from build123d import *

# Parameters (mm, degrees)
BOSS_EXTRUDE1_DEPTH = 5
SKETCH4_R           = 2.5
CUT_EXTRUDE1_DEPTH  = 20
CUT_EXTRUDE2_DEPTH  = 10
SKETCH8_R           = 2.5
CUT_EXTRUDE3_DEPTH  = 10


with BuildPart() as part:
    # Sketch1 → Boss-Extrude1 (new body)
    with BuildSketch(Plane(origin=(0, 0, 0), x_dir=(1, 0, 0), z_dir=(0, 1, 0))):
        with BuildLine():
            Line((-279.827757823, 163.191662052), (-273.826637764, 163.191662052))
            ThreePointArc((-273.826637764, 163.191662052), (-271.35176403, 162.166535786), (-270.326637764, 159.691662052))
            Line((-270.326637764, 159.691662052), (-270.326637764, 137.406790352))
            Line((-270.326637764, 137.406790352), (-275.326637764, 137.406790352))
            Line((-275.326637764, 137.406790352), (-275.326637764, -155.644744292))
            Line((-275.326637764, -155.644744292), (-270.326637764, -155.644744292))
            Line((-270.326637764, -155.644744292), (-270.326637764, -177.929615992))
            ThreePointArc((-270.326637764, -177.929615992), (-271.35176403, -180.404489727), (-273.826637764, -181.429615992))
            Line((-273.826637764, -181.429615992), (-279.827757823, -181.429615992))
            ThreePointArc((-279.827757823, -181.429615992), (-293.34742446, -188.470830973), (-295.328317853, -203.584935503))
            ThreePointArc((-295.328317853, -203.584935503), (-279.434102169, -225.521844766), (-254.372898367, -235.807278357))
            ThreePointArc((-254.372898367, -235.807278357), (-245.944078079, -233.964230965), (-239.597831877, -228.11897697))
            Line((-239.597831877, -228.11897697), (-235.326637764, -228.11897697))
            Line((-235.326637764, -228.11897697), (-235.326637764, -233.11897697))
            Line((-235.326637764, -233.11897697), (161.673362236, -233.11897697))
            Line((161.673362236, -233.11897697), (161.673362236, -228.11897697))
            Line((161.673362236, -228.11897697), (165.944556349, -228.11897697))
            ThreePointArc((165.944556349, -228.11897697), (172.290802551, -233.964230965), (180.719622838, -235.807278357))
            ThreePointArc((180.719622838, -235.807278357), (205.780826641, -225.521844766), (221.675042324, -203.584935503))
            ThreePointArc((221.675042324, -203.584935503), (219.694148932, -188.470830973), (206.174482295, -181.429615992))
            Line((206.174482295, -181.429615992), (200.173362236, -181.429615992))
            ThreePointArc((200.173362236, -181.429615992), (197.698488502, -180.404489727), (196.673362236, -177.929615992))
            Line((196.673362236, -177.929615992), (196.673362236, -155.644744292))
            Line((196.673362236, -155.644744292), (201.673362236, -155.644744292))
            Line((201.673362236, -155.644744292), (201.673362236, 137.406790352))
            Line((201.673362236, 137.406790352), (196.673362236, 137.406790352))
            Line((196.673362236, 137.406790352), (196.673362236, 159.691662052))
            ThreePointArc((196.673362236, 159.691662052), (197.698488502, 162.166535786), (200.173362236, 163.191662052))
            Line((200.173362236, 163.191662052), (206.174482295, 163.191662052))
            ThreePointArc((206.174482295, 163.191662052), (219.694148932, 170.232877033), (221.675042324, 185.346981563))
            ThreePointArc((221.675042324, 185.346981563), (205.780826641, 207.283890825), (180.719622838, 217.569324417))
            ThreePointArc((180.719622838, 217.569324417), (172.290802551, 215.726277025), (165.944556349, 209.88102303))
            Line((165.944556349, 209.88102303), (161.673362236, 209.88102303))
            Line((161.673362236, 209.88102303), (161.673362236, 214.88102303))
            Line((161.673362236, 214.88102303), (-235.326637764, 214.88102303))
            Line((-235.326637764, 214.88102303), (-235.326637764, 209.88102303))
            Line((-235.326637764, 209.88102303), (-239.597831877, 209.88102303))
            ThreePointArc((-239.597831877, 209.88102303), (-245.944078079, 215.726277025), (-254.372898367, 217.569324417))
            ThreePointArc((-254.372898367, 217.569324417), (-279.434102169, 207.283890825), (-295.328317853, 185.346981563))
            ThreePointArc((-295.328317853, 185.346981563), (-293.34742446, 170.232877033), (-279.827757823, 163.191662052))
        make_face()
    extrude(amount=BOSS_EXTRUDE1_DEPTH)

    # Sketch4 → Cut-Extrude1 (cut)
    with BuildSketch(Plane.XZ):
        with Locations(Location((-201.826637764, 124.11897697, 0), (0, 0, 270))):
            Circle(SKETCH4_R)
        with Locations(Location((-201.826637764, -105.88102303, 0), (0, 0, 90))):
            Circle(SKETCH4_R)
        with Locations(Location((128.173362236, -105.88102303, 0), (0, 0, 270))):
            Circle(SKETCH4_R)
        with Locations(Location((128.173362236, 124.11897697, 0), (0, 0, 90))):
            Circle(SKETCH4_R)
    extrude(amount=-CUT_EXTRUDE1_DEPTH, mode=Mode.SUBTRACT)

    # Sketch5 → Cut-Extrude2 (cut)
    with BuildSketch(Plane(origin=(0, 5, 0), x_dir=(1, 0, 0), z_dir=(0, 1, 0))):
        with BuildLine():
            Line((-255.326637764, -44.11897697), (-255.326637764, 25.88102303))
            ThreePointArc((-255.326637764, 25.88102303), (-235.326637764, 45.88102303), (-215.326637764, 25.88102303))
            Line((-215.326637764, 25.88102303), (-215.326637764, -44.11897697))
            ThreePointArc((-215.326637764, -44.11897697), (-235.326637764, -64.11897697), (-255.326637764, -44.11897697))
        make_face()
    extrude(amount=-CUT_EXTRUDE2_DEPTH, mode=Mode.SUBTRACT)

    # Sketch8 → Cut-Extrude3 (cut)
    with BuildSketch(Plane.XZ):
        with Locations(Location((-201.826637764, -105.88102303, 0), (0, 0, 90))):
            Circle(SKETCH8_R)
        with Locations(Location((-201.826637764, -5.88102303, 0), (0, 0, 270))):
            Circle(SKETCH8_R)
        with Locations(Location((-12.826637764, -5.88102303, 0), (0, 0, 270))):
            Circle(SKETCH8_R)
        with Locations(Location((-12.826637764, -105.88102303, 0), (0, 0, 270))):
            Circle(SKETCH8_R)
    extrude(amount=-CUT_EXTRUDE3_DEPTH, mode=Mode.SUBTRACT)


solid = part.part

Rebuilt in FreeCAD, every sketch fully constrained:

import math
import FreeCAD as App
import Part
import Sketcher
from FreeCAD import Vector
Q = App.Units.Quantity

doc = App.newDocument("Part")
body = doc.addObject("PartDesign::Body", "Body")

sketch1 = body.newObject("Sketcher::SketchObject", "Sketch")
sketch1.AttachmentSupport = (doc.getObject("XZ_Plane"), [""])
sketch1.MapMode = "FlatFace"
sketch1.addGeometry([
    Part.LineSegment(Vector(-279.8, -163.2, 0), Vector(-273.8, -163.2, 0)),
    Part.ArcOfCircle(Part.Circle(Vector(-273.8, -159.7, 0), Vector(0, 0, 1), 3.5), math.radians(-90), math.radians(0)),
    Part.LineSegment(Vector(-270.3, -159.7, 0), Vector(-270.3, -137.4, 0)),
    Part.LineSegment(Vector(-270.3, -137.4, 0), Vector(-275.3, -137.4, 0)),
    Part.LineSegment(Vector(-275.3, -137.4, 0), Vector(-275.3, 155.6, 0)),
    Part.LineSegment(Vector(-275.3, 155.6, 0), Vector(-270.3, 155.6, 0)),
    Part.LineSegment(Vector(-270.3, 155.6, 0), Vector(-270.3, 177.9, 0)),
    Part.ArcOfCircle(Part.Circle(Vector(-273.8, 177.9, 0), Vector(0, 0, 1), 3.5), math.radians(0), math.radians(90)),
    Part.LineSegment(Vector(-273.8, 181.4, 0), Vector(-279.8, 181.4, 0)),
    Part.ArcOfCircle(Part.Circle(Vector(-279.8, 197.9, 0), Vector(0, 0, 1), 16.5), math.radians(160), math.radians(270)),
    Part.ArcOfCircle(Part.Circle(Vector(-248.8, 186.6, 0), Vector(0, 0, 1), 49.5), math.radians(96), math.radians(160)),
    Part.ArcOfCircle(Part.Circle(Vector(-253.6, 219.3, 0), Vector(0, 0, 1), 16.5), math.radians(32), math.radians(93)),
    Part.LineSegment(Vector(-239.6, 228.1, 0), Vector(-235.3, 228.1, 0)),
    Part.LineSegment(Vector(-235.3, 228.1, 0), Vector(-235.3, 233.1, 0)),
    Part.LineSegment(Vector(-235.3, 233.1, 0), Vector(161.7, 233.1, 0)),
    Part.LineSegment(Vector(161.7, 233.1, 0), Vector(161.7, 228.1, 0)),
    Part.LineSegment(Vector(161.7, 228.1, 0), Vector(165.9, 228.1, 0)),
    Part.ArcOfCircle(Part.Circle(Vector(179.9, 219.3, 0), Vector(0, 0, 1), 16.5), math.radians(87), math.radians(148)),
    Part.ArcOfCircle(Part.Circle(Vector(175.2, 186.6, 0), Vector(0, 0, 1), 49.5), math.radians(20), math.radians(84)),
    Part.ArcOfCircle(Part.Circle(Vector(206.2, 197.9, 0), Vector(0, 0, 1), 16.5), math.radians(-90), math.radians(20)),
    Part.LineSegment(Vector(206.2, 181.4, 0), Vector(200.2, 181.4, 0)),
    Part.ArcOfCircle(Part.Circle(Vector(200.2, 177.9, 0), Vector(0, 0, 1), 3.5), math.radians(90), math.radians(180)),
    Part.LineSegment(Vector(196.7, 177.9, 0), Vector(196.7, 155.6, 0)),
    Part.LineSegment(Vector(196.7, 155.6, 0), Vector(201.7, 155.6, 0)),
    Part.LineSegment(Vector(201.7, 155.6, 0), Vector(201.7, -137.4, 0)),
    Part.LineSegment(Vector(201.7, -137.4, 0), Vector(196.7, -137.4, 0)),
    Part.LineSegment(Vector(196.7, -137.4, 0), Vector(196.7, -159.7, 0)),
    Part.ArcOfCircle(Part.Circle(Vector(200.2, -159.7, 0), Vector(0, 0, 1), 3.5), math.radians(-180), math.radians(-90)),
    Part.LineSegment(Vector(200.2, -163.2, 0), Vector(206.2, -163.2, 0)),
    Part.ArcOfCircle(Part.Circle(Vector(206.2, -179.7, 0), Vector(0, 0, 1), 16.5), math.radians(-20), math.radians(90)),
    Part.ArcOfCircle(Part.Circle(Vector(175.2, -168.4, 0), Vector(0, 0, 1), 49.5), math.radians(-84), math.radians(-20)),
    Part.ArcOfCircle(Part.Circle(Vector(179.9, -201.1, 0), Vector(0, 0, 1), 16.5), math.radians(-148), math.radians(-87)),
    Part.LineSegment(Vector(165.9, -209.9, 0), Vector(161.7, -209.9, 0)),
    Part.LineSegment(Vector(161.7, -209.9, 0), Vector(161.7, -214.9, 0)),
    Part.LineSegment(Vector(161.7, -214.9, 0), Vector(-235.3, -214.9, 0)),
    Part.LineSegment(Vector(-235.3, -214.9, 0), Vector(-235.3, -209.9, 0)),
    Part.LineSegment(Vector(-235.3, -209.9, 0), Vector(-239.6, -209.9, 0)),
    Part.ArcOfCircle(Part.Circle(Vector(-253.6, -201.1, 0), Vector(0, 0, 1), 16.5), math.radians(-93), math.radians(-32)),
    Part.ArcOfCircle(Part.Circle(Vector(-248.8, -168.4, 0), Vector(0, 0, 1), 49.5), math.radians(-160), math.radians(-96)),
    Part.ArcOfCircle(Part.Circle(Vector(-279.8, -179.7, 0), Vector(0, 0, 1), 16.5), math.radians(90), math.radians(200)),
], False)
sketch1.addConstraint([
    Sketcher.Constraint("Tangent", 0, 2, 1, 1),
    Sketcher.Constraint("Tangent", 1, 2, 2, 1),
    Sketcher.Constraint("Coincident", 2, 2, 3, 1),
    Sketcher.Constraint("Coincident", 3, 2, 4, 1),
    Sketcher.Constraint("Coincident", 4, 2, 5, 1),
    Sketcher.Constraint("Coincident", 5, 2, 6, 1),
    Sketcher.Constraint("Tangent", 6, 2, 7, 1),
    Sketcher.Constraint("Tangent", 7, 2, 8, 1),
    Sketcher.Constraint("Tangent", 8, 2, 9, 2),
    Sketcher.Constraint("Tangent", 9, 1, 10, 2),
    Sketcher.Constraint("Coincident", 10, 1, 11, 2),
    Sketcher.Constraint("Coincident", 11, 1, 12, 1),
    Sketcher.Constraint("Coincident", 12, 2, 13, 1),
    Sketcher.Constraint("Coincident", 13, 2, 14, 1),
    Sketcher.Constraint("Coincident", 14, 2, 15, 1),
    Sketcher.Constraint("Coincident", 15, 2, 16, 1),
    Sketcher.Constraint("Coincident", 16, 2, 17, 2),
    Sketcher.Constraint("Coincident", 17, 1, 18, 2),
    Sketcher.Constraint("Tangent", 18, 1, 19, 2),
    Sketcher.Constraint("Tangent", 19, 1, 20, 1),
    Sketcher.Constraint("Tangent", 20, 2, 21, 1),
    Sketcher.Constraint("Tangent", 21, 2, 22, 1),
    Sketcher.Constraint("Coincident", 22, 2, 23, 1),
    Sketcher.Constraint("Coincident", 23, 2, 24, 1),
    Sketcher.Constraint("Coincident", 24, 2, 25, 1),
    Sketcher.Constraint("Coincident", 25, 2, 26, 1),
    Sketcher.Constraint("Tangent", 26, 2, 27, 1),
    Sketcher.Constraint("Tangent", 27, 2, 28, 1),
    Sketcher.Constraint("Tangent", 28, 2, 29, 2),
    Sketcher.Constraint("Tangent", 29, 1, 30, 2),
    Sketcher.Constraint("Coincident", 30, 1, 31, 2),
    Sketcher.Constraint("Coincident", 31, 1, 32, 1),
    Sketcher.Constraint("Coincident", 32, 2, 33, 1),
    Sketcher.Constraint("Coincident", 33, 2, 34, 1),
    Sketcher.Constraint("Coincident", 34, 2, 35, 1),
    Sketcher.Constraint("Coincident", 35, 2, 36, 1),
    Sketcher.Constraint("Coincident", 36, 2, 37, 2),
    Sketcher.Constraint("Coincident", 37, 1, 38, 2),
    Sketcher.Constraint("Tangent", 38, 1, 39, 2),
    Sketcher.Constraint("Tangent", 39, 1, 0, 1),
    Sketcher.Constraint("Horizontal", 0),
    Sketcher.Constraint("Vertical", 2),
    Sketcher.Constraint("Horizontal", 3),
    Sketcher.Constraint("Vertical", 4),
    Sketcher.Constraint("Horizontal", 5),
    Sketcher.Constraint("Vertical", 6),
    Sketcher.Constraint("Horizontal", 8),
    Sketcher.Constraint("Horizontal", 12),
    Sketcher.Constraint("Vertical", 13),
    Sketcher.Constraint("Horizontal", 14),
    Sketcher.Constraint("Vertical", 15),
    Sketcher.Constraint("Horizontal", 16),
    Sketcher.Constraint("Horizontal", 20),
    Sketcher.Constraint("Vertical", 22),
    Sketcher.Constraint("Horizontal", 23),
    Sketcher.Constraint("Vertical", 24),
    Sketcher.Constraint("Horizontal", 25),
    Sketcher.Constraint("Vertical", 26),
    Sketcher.Constraint("Horizontal", 28),
    Sketcher.Constraint("Horizontal", 32),
    Sketcher.Constraint("Vertical", 33),
    Sketcher.Constraint("Horizontal", 34),
    Sketcher.Constraint("Vertical", 35),
    Sketcher.Constraint("Horizontal", 36),
    Sketcher.Constraint("Equal", 1, 7),
    Sketcher.Constraint("Equal", 9, 11),
    Sketcher.Constraint("Equal", 11, 17),
    Sketcher.Constraint("Equal", 10, 18),
    Sketcher.Constraint("Equal", 17, 19),
    Sketcher.Constraint("Equal", 7, 21),
    Sketcher.Constraint("Equal", 21, 27),
    Sketcher.Constraint("Equal", 19, 29),
    Sketcher.Constraint("Equal", 18, 30),
    Sketcher.Constraint("Equal", 29, 31),
    Sketcher.Constraint("Equal", 31, 37),
    Sketcher.Constraint("Equal", 30, 38),
    Sketcher.Constraint("Equal", 37, 39),
    Sketcher.Constraint("Horizontal", 11, 3, 17, 3),
    Sketcher.Constraint("Horizontal", 10, 3, 18, 3),
    Sketcher.Constraint("Horizontal", 9, 3, 19, 3),
    Sketcher.Constraint("Horizontal", 1, 3, 27, 3),
    Sketcher.Constraint("Horizontal", 31, 3, 37, 3),
    Sketcher.Constraint("Horizontal", 30, 3, 38, 3),
    Sketcher.Constraint("Horizontal", 12, 2, 15, 2),
    Sketcher.Constraint("Horizontal", 10, 1, 17, 1),
    Sketcher.Constraint("Horizontal", 5, 2, 22, 2),
    Sketcher.Constraint("Horizontal", 3, 2, 24, 2),
    Sketcher.Constraint("Horizontal", 32, 2, 35, 2),
    Sketcher.Constraint("Horizontal", 30, 1, 37, 1),
    Sketcher.Constraint("Vertical", 1, 3, 7, 3),
    Sketcher.Constraint("Vertical", 21, 3, 27, 3),
    Sketcher.Constraint("Vertical", 19, 3, 29, 3),
    Sketcher.Constraint("Vertical", 18, 3, 30, 3),
    Sketcher.Constraint("Vertical", 17, 3, 31, 3),
    Sketcher.Constraint("Vertical", 11, 3, 37, 3),
    Sketcher.Constraint("Vertical", 17, 1, 30, 1),
    Sketcher.Constraint("Vertical", 16, 2, 31, 1),
    Sketcher.Constraint("Vertical", 15, 2, 32, 2),
    Sketcher.Constraint("Vertical", 13, 2, 34, 2),
    Sketcher.Constraint("Equal", 12, 16),
    Sketcher.Constraint("Equal", 8, 20),
    Sketcher.Constraint("Equal", 5, 23),
    Sketcher.Constraint("Equal", 2, 6),
    Sketcher.Constraint("Equal", 25, 13),
    Sketcher.Constraint("Equal", 15, 33),
    Sketcher.Constraint("Radius", 1, Q("3.5 mm")),
    Sketcher.Constraint("Radius", 9, Q("16.5 mm")),
    Sketcher.Constraint("Radius", 10, Q("49.5 mm")),
    Sketcher.Constraint("DistanceX", 3, 2, 3, 1, Q("5 mm")),
    Sketcher.Constraint("DistanceX", 14, 1, 14, 2, Q("397 mm")),
    Sketcher.Constraint("DistanceX", 7, 3, 10, 3, Q("25 mm")),
    Sketcher.Constraint("DistanceX", 10, 3, 18, 3, Q("424 mm")),
    Sketcher.Constraint("DistanceY", 30, 3, 18, 3, Q("355 mm")),
    Sketcher.Constraint("DistanceY", 10, 3, 11, 1, Q("41.5 mm")),
    Sketcher.Constraint("DistanceX", 0, 1, 0, 2, Q("6.00112 mm")),
    Sketcher.Constraint("DistanceY", 2, 1, 2, 2, Q("22.284872 mm")),
    Sketcher.Constraint("DistanceX", 10, 1, -1, 1, Q("254.372898 mm")),
    Sketcher.Constraint("DistanceY", 10, 3, 10, 1, Q("49.188301 mm")),
    Sketcher.Constraint("DistanceX", 12, 1, 12, 2, Q("4.271194 mm")),
    Sketcher.Constraint("DistanceY", -1, 1, 11, 3, Q("219.32729 mm")),
])
pad1 = body.newObject("PartDesign::Pad", "Pad")
pad1.Profile = sketch1
pad1.Length = 5
pad1.Reversed = True

sketch2 = body.newObject("Sketcher::SketchObject", "Sketch001")
sketch2.AttachmentSupport = (doc.getObject("XZ_Plane"), [""])
sketch2.MapMode = "FlatFace"
sketch2.addGeometry([
    Part.Circle(Vector(-201.8, 124.1, 0), Vector(0, 0, 1), 2.5),
    Part.Circle(Vector(-201.8, -105.9, 0), Vector(0, 0, 1), 2.5),
    Part.Circle(Vector(128.2, -105.9, 0), Vector(0, 0, 1), 2.5),
    Part.Circle(Vector(128.2, 124.1, 0), Vector(0, 0, 1), 2.5),
], False)
sketch2.addConstraint([
    Sketcher.Constraint("Equal", 0, 1),
    Sketcher.Constraint("Equal", 1, 2),
    Sketcher.Constraint("Equal", 2, 3),
    Sketcher.Constraint("Horizontal", 1, 3, 2, 3),
    Sketcher.Constraint("Horizontal", 0, 3, 3, 3),
    Sketcher.Constraint("Vertical", 0, 3, 1, 3),
    Sketcher.Constraint("Vertical", 2, 3, 3, 3),
    Sketcher.Constraint("Diameter", 0, Q("5 mm")),
    Sketcher.Constraint("DistanceY", 1, 3, 0, 3, Q("230 mm")),
    Sketcher.Constraint("DistanceX", 1, 3, 2, 3, Q("330 mm")),
    Sketcher.Constraint("DistanceX", 0, 3, -1, 1, Q("201.826638 mm")),
    Sketcher.Constraint("DistanceY", -1, 1, 0, 3, Q("124.118977 mm")),
])
pocket1 = body.newObject("PartDesign::Pocket", "Pocket")
pocket1.Profile = sketch2
pocket1.Length = 20

sketch3 = body.newObject("Sketcher::SketchObject", "Sketch002")
sketch3.AttachmentSupport = (doc.getObject("XZ_Plane"), [""])
sketch3.MapMode = "FlatFace"
sketch3.AttachmentOffset = App.Placement(Vector(0, 0, -5), App.Rotation())
sketch3.addGeometry([
    Part.LineSegment(Vector(-255, -26, 0), Vector(-255, 44, 0)),
    Part.ArcOfCircle(Part.Circle(Vector(-235, 44, 0), Vector(0, 0, 1), 20), math.radians(0), math.radians(180)),
    Part.LineSegment(Vector(-215, 44, 0), Vector(-215, -26, 0)),
    Part.ArcOfCircle(Part.Circle(Vector(-235, -26, 0), Vector(0, 0, 1), 20), math.radians(180), math.radians(360)),
], False)
sketch3.addConstraint([
    Sketcher.Constraint("Tangent", 0, 2, 1, 2),
    Sketcher.Constraint("Tangent", 1, 1, 2, 1),
    Sketcher.Constraint("Tangent", 2, 2, 3, 2),
    Sketcher.Constraint("Tangent", 3, 1, 0, 1),
    Sketcher.Constraint("Vertical", 0),
    Sketcher.Constraint("Vertical", 2),
    Sketcher.Constraint("Radius", 1, Q("20 mm")),
    Sketcher.Constraint("DistanceY", 0, 1, 0, 2, Q("70 mm")),
    Sketcher.Constraint("DistanceX", 1, 3, -1, 1, Q("235.326638 mm")),
    Sketcher.Constraint("DistanceY", -1, 1, 1, 3, Q("44.118977 mm")),
])
pocket2 = body.newObject("PartDesign::Pocket", "Pocket001")
pocket2.Profile = sketch3
pocket2.Length = 10
pocket2.Reversed = True

sketch4 = body.newObject("Sketcher::SketchObject", "Sketch003")
sketch4.AttachmentSupport = (doc.getObject("XZ_Plane"), [""])
sketch4.MapMode = "FlatFace"
sketch4.addGeometry([
    Part.Circle(Vector(-201.8, -105.9, 0), Vector(0, 0, 1), 2.5),
    Part.Circle(Vector(-201.8, -5.9, 0), Vector(0, 0, 1), 2.5),
    Part.Circle(Vector(-12.8, -5.9, 0), Vector(0, 0, 1), 2.5),
    Part.Circle(Vector(-12.8, -105.9, 0), Vector(0, 0, 1), 2.5),
], False)
sketch4.addConstraint([
    Sketcher.Constraint("Equal", 0, 1),
    Sketcher.Constraint("Equal", 1, 2),
    Sketcher.Constraint("Equal", 2, 3),
    Sketcher.Constraint("Horizontal", 1, 3, 2, 3),
    Sketcher.Constraint("Horizontal", 0, 3, 3, 3),
    Sketcher.Constraint("Vertical", 0, 3, 1, 3),
    Sketcher.Constraint("Vertical", 2, 3, 3, 3),
    Sketcher.Constraint("Diameter", 0, Q("5 mm")),
    Sketcher.Constraint("DistanceY", 0, 3, 1, 3, Q("100 mm")),
    Sketcher.Constraint("DistanceX", 1, 3, 2, 3, Q("189 mm")),
    Sketcher.Constraint("DistanceX", 0, 3, -1, 1, Q("201.826638 mm")),
    Sketcher.Constraint("DistanceY", 0, 3, -1, 1, Q("105.881023 mm")),
])
pocket3 = body.newObject("PartDesign::Pocket", "Pocket002")
pocket3.Profile = sketch4
pocket3.Length = 10

doc.recompute()
